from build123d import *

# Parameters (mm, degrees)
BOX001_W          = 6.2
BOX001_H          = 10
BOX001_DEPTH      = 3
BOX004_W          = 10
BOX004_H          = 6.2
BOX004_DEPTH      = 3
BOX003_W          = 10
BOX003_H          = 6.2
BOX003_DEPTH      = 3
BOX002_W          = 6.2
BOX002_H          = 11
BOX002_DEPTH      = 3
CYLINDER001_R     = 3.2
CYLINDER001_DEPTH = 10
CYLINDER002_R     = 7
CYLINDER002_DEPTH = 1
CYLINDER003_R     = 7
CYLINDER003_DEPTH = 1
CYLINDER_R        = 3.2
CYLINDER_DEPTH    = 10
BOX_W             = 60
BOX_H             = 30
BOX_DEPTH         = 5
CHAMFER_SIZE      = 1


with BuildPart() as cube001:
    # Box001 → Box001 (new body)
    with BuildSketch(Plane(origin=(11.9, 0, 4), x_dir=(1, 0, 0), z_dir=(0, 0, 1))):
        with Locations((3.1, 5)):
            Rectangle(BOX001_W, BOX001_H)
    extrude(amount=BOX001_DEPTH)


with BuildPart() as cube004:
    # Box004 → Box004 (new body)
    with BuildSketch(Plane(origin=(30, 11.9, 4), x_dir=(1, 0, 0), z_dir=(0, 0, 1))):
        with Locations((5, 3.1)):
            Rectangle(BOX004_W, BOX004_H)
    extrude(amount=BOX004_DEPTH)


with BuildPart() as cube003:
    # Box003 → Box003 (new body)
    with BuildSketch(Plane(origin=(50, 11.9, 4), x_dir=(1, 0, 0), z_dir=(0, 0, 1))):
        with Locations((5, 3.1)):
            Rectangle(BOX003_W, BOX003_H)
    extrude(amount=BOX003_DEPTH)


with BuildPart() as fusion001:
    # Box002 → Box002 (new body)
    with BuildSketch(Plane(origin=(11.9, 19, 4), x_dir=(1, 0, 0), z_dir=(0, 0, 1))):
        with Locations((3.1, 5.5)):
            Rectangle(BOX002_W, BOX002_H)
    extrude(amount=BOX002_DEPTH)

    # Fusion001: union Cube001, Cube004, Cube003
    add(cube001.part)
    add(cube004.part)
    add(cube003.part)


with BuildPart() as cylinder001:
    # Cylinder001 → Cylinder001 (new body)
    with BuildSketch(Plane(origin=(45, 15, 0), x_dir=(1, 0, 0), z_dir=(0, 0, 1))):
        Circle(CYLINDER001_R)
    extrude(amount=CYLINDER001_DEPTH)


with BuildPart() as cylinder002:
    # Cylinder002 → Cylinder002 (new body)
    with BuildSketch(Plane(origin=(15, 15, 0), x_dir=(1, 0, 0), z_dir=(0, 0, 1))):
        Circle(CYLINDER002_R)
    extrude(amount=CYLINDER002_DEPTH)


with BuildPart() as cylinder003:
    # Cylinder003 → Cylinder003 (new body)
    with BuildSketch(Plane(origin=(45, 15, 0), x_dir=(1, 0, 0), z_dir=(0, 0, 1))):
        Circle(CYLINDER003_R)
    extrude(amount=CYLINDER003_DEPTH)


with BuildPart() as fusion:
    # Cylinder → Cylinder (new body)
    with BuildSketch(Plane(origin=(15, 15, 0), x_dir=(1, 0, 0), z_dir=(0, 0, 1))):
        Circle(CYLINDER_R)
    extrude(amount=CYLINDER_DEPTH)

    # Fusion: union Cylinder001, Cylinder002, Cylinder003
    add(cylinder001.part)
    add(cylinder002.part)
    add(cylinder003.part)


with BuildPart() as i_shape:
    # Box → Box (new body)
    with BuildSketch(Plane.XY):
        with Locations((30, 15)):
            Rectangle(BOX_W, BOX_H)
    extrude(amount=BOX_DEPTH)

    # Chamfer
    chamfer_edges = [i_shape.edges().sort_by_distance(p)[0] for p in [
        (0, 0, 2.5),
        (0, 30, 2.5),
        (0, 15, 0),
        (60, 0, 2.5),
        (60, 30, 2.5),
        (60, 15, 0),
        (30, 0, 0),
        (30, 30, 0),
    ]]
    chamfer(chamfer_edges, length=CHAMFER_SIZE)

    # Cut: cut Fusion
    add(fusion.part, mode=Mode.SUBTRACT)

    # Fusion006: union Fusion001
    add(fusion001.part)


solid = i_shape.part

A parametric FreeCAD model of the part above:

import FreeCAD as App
import Part
import Sketcher


def edges_at(feature, points):
    """Names of the edges that pass closest to the given points."""
    edges = feature.Shape.Edges
    near = lambda p: min(range(len(edges)), key=lambda i: edges[i].distToShape(Part.Vertex(*p))[0])
    return sorted({f"Edge{near(p) + 1}" for p in points})

doc = App.newDocument("Part")
body = doc.addObject("PartDesign::Body", "Body")

sketch1 = body.newObject("Sketcher::SketchObject", "Sketch")
sketch1.AttachmentSupport = (doc.getObject("XY_Plane"), [""])
sketch1.MapMode = "FlatFace"
sketch1.AttachmentOffset = App.Placement(App.Vector(0, 0, 4), App.Rotation())
sketch1.addGeometry(Part.LineSegment(App.Vector(12, 10, 0), App.Vector(12, 0, 0)), False)
sketch1.addGeometry(Part.LineSegment(App.Vector(12, 0, 0), App.Vector(18, 0, 0)), False)
sketch1.addGeometry(Part.LineSegment(App.Vector(18, 0, 0), App.Vector(18, 10, 0)), False)
sketch1.addGeometry(Part.LineSegment(App.Vector(18, 10, 0), App.Vector(12, 10, 0)), False)
sketch1.addConstraint(Sketcher.Constraint("Coincident", 0, 2, 1, 1))
sketch1.addConstraint(Sketcher.Constraint("Coincident", 1, 2, 2, 1))
sketch1.addConstraint(Sketcher.Constraint("Coincident", 2, 2, 3, 1))
sketch1.addConstraint(Sketcher.Constraint("Coincident", 3, 2, 0, 1))
sketch1.addConstraint(Sketcher.Constraint("Vertical", 0))
sketch1.addConstraint(Sketcher.Constraint("Horizontal", 1))
sketch1.addConstraint(Sketcher.Constraint("Vertical", 2))
sketch1.addConstraint(Sketcher.Constraint("Horizontal", 3))
sketch1.addConstraint(Sketcher.Constraint("PointOnObject", 0, 2, -1))
sketch1.addConstraint(Sketcher.Constraint("DistanceY", 0, 2, 0, 1, 10.0))
sketch1.addConstraint(Sketcher.Constraint("DistanceX", 1, 1, 1, 2, 6.2))
sketch1.addConstraint(Sketcher.Constraint("DistanceX", -1, 1, 0, 2, 11.9))
pad1 = body.newObject("PartDesign::Pad", "Pad")
pad1.Profile = sketch1
pad1.Length = 3
body2 = doc.addObject("PartDesign::Body", "Body001")

sketch2 = body2.newObject("Sketcher::SketchObject", "Sketch001")
sketch2.AttachmentSupport = (doc.getObject("XY_Plane001"), [""])
sketch2.MapMode = "FlatFace"
sketch2.AttachmentOffset = App.Placement(App.Vector(0, 0, 4), App.Rotation())
sketch2.addGeometry(Part.LineSegment(App.Vector(30, 18, 0), App.Vector(30, 12, 0)), False)
sketch2.addGeometry(Part.LineSegment(App.Vector(30, 12, 0), App.Vector(40, 12, 0)), False)
sketch2.addGeometry(Part.LineSegment(App.Vector(40, 12, 0), App.Vector(40, 18, 0)), False)
sketch2.addGeometry(Part.LineSegment(App.Vector(40, 18, 0), App.Vector(30, 18, 0)), False)
sketch2.addConstraint(Sketcher.Constraint("Coincident", 0, 2, 1, 1))
sketch2.addConstraint(Sketcher.Constraint("Coincident", 1, 2, 2, 1))
sketch2.addConstraint(Sketcher.Constraint("Coincident", 2, 2, 3, 1))
sketch2.addConstraint(Sketcher.Constraint("Coincident", 3, 2, 0, 1))
sketch2.addConstraint(Sketcher.Constraint("Vertical", 0))
sketch2.addConstraint(Sketcher.Constraint("Horizontal", 1))
sketch2.addConstraint(Sketcher.Constraint("Vertical", 2))
sketch2.addConstraint(Sketcher.Constraint("Horizontal", 3))
sketch2.addConstraint(Sketcher.Constraint("DistanceX", 1, 1, 1, 2, 10.0))
sketch2.addConstraint(Sketcher.Constraint("DistanceY", 0, 2, 0, 1, 6.2))
sketch2.addConstraint(Sketcher.Constraint("DistanceX", -1, 1, 0, 2, 30.0))
sketch2.addConstraint(Sketcher.Constraint("DistanceY", -1, 1, 0, 2, 11.9))
pad2 = body2.newObject("PartDesign::Pad", "Pad001")
pad2.Profile = sketch2
pad2.Length = 3
body3 = doc.addObject("PartDesign::Body", "Body002")

sketch3 = body3.newObject("Sketcher::SketchObject", "Sketch002")
sketch3.AttachmentSupport = (doc.getObject("XY_Plane002"), [""])
sketch3.MapMode = "FlatFace"
sketch3.AttachmentOffset = App.Placement(App.Vector(0, 0, 4), App.Rotation())
sketch3.addGeometry(Part.LineSegment(App.Vector(50, 18, 0), App.Vector(50, 12, 0)), False)
sketch3.addGeometry(Part.LineSegment(App.Vector(50, 12, 0), App.Vector(60, 12, 0)), False)
sketch3.addGeometry(Part.LineSegment(App.Vector(60, 12, 0), App.Vector(60, 18, 0)), False)
sketch3.addGeometry(Part.LineSegment(App.Vector(60, 18, 0), App.Vector(50, 18, 0)), False)
sketch3.addConstraint(Sketcher.Constraint("Coincident", 0, 2, 1, 1))
sketch3.addConstraint(Sketcher.Constraint("Coincident", 1, 2, 2, 1))
sketch3.addConstraint(Sketcher.Constraint("Coincident", 2, 2, 3, 1))
sketch3.addConstraint(Sketcher.Constraint("Coincident", 3, 2, 0, 1))
sketch3.addConstraint(Sketcher.Constraint("Vertical", 0))
sketch3.addConstraint(Sketcher.Constraint("Horizontal", 1))
sketch3.addConstraint(Sketcher.Constraint("Vertical", 2))
sketch3.addConstraint(Sketcher.Constraint("Horizontal", 3))
sketch3.addConstraint(Sketcher.Constraint("DistanceX", 1, 1, 1, 2, 10.0))
sketch3.addConstraint(Sketcher.Constraint("DistanceY", 0, 2, 0, 1, 6.2))
sketch3.addConstraint(Sketcher.Constraint("DistanceX", -1, 1, 0, 2, 50.0))
sketch3.addConstraint(Sketcher.Constraint("DistanceY", -1, 1, 0, 2, 11.9))
pad3 = body3.newObject("PartDesign::Pad", "Pad002")
pad3.Profile = sketch3
pad3.Length = 3
body4 = doc.addObject("PartDesign::Body", "Body003")
body4.AllowCompound = True

sketch4 = body4.newObject("Sketcher::SketchObject", "Sketch003")
sketch4.AttachmentSupport = (doc.getObject("XY_Plane003"), [""])
sketch4.MapMode = "FlatFace"
sketch4.AttachmentOffset = App.Placement(App.Vector(0, 0, 4), App.Rotation())
sketch4.addGeometry(Part.LineSegment(App.Vector(12, 30, 0), App.Vector(12, 19, 0)), False)
sketch4.addGeometry(Part.LineSegment(App.Vector(12, 19, 0), App.Vector(18, 19, 0)), False)
sketch4.addGeometry(Part.LineSegment(App.Vector(18, 19, 0), App.Vector(18, 30, 0)), False)
sketch4.addGeometry(Part.LineSegment(App.Vector(18, 30, 0), App.Vector(12, 30, 0)), False)
sketch4.addConstraint(Sketcher.Constraint("Coincident", 0, 2, 1, 1))
sketch4.addConstraint(Sketcher.Constraint("Coincident", 1, 2, 2, 1))
sketch4.addConstraint(Sketcher.Constraint("Coincident", 2, 2, 3, 1))
sketch4.addConstraint(Sketcher.Constraint("Coincident", 3, 2, 0, 1))
sketch4.addConstraint(Sketcher.Constraint("Vertical", 0))
sketch4.addConstraint(Sketcher.Constraint("Horizontal", 1))
sketch4.addConstraint(Sketcher.Constraint("Vertical", 2))
sketch4.addConstraint(Sketcher.Constraint("Horizontal", 3))
sketch4.addConstraint(Sketcher.Constraint("DistanceY", 0, 2, 0, 1, 11.0))
sketch4.addConstraint(Sketcher.Constraint("DistanceX", 1, 1, 1, 2, 6.2))
sketch4.addConstraint(Sketcher.Constraint("DistanceY", -1, 1, 0, 2, 19.0))
sketch4.addConstraint(Sketcher.Constraint("DistanceX", -1, 1, 0, 2, 11.9))
pad4 = body4.newObject("PartDesign::Pad", "Pad003")
pad4.Profile = sketch4
pad4.Length = 3
doc.recompute()

boolean = body4.newObject("PartDesign::Boolean", "Boolean")
boolean.Type = "Fuse"
boolean.addObjects([body])
doc.recompute()

boolean2 = body4.newObject("PartDesign::Boolean", "Boolean001")
boolean2.Type = "Fuse"
boolean2.addObjects([body2])
doc.recompute()

boolean3 = body4.newObject("PartDesign::Boolean", "Boolean002")
boolean3.Type = "Fuse"
boolean3.addObjects([body3])
body5 = doc.addObject("PartDesign::Body", "Body004")

sketch5 = body5.newObject("Sketcher::SketchObject", "Sketch004")
sketch5.AttachmentSupport = (doc.getObject("XY_Plane004"), [""])
sketch5.MapMode = "FlatFace"
sketch5.addGeometry(Part.Circle(App.Vector(45, 15, 0), App.Vector(0, 0, 1), 3.2), False)
sketch5.addConstraint(Sketcher.Constraint("Diameter", 0, 6.4))
sketch5.addConstraint(Sketcher.Constraint("DistanceX", -1, 1, 0, 3, 45.0))
sketch5.addConstraint(Sketcher.Constraint("DistanceY", -1, 1, 0, 3, 15.0))
pad5 = body5.newObject("PartDesign::Pad", "Pad004")
pad5.Profile = sketch5
pad5.Length = 10
body6 = doc.addObject("PartDesign::Body", "Body005")

sketch6 = body6.newObject("Sketcher::SketchObject", "Sketch005")
sketch6.AttachmentSupport = (doc.getObject("XY_Plane005"), [""])
sketch6.MapMode = "FlatFace"
sketch6.addGeometry(Part.Circle(App.Vector(15, 15, 0), App.Vector(0, 0, 1), 7), False)
sketch6.addConstraint(Sketcher.Constraint("Diameter", 0, 14.0))
sketch6.addConstraint(Sketcher.Constraint("DistanceX", -1, 1, 0, 3, 15.0))
sketch6.addConstraint(Sketcher.Constraint("DistanceY", -1, 1, 0, 3, 15.0))
pad6 = body6.newObject("PartDesign::Pad", "Pad005")
pad6.Profile = sketch6
pad6.Length = 1
body7 = doc.addObject("PartDesign::Body", "Body006")

sketch7 = body7.newObject("Sketcher::SketchObject", "Sketch006")
sketch7.AttachmentSupport = (doc.getObject("XY_Plane006"), [""])
sketch7.MapMode = "FlatFace"
sketch7.addGeometry(Part.Circle(App.Vector(45, 15, 0), App.Vector(0, 0, 1), 7), False)
sketch7.addConstraint(Sketcher.Constraint("Diameter", 0, 14.0))
sketch7.addConstraint(Sketcher.Constraint("DistanceX", -1, 1, 0, 3, 45.0))
sketch7.addConstraint(Sketcher.Constraint("DistanceY", -1, 1, 0, 3, 15.0))
pad7 = body7.newObject("PartDesign::Pad", "Pad006")
pad7.Profile = sketch7
pad7.Length = 1
body8 = doc.addObject("PartDesign::Body", "Body007")
body8.AllowCompound = True

sketch8 = body8.newObject("Sketcher::SketchObject", "Sketch007")
sketch8.AttachmentSupport = (doc.getObject("XY_Plane007"), [""])
sketch8.MapMode = "FlatFace"
sketch8.addGeometry(Part.Circle(App.Vector(15, 15, 0), App.Vector(0, 0, 1), 3.2), False)
sketch8.addConstraint(Sketcher.Constraint("Diameter", 0, 6.4))
sketch8.addConstraint(Sketcher.Constraint("DistanceX", -1, 1, 0, 3, 15.0))
sketch8.addConstraint(Sketcher.Constraint("DistanceY", -1, 1, 0, 3, 15.0))
pad8 = body8.newObject("PartDesign::Pad", "Pad007")
pad8.Profile = sketch8
pad8.Length = 10
doc.recompute()

boolean4 = body8.newObject("PartDesign::Boolean", "Boolean003")
boolean4.Type = "Fuse"
boolean4.addObjects([body5])
doc.recompute()

boolean5 = body8.newObject("PartDesign::Boolean", "Boolean004")
boolean5.Type = "Fuse"
boolean5.addObjects([body6])
doc.recompute()

boolean6 = body8.newObject("PartDesign::Boolean", "Boolean005")
boolean6.Type = "Fuse"
boolean6.addObjects([body7])
body9 = doc.addObject("PartDesign::Body", "Body008")

sketch9 = body9.newObject("Sketcher::SketchObject", "Sketch008")
sketch9.AttachmentSupport = (doc.getObject("XY_Plane008"), [""])
sketch9.MapMode = "FlatFace"
sketch9.addGeometry(Part.LineSegment(App.Vector(0, 30, 0), App.Vector(0, 0, 0)), False)
sketch9.addGeometry(Part.LineSegment(App.Vector(0, 0, 0), App.Vector(60, 0, 0)), False)
sketch9.addGeometry(Part.LineSegment(App.Vector(60, 0, 0), App.Vector(60, 30, 0)), False)
sketch9.addGeometry(Part.LineSegment(App.Vector(60, 30, 0), App.Vector(0, 30, 0)), False)
sketch9.addConstraint(Sketcher.Constraint("Coincident", 0, 2, 1, 1))
sketch9.addConstraint(Sketcher.Constraint("Coincident", 1, 2, 2, 1))
sketch9.addConstraint(Sketcher.Constraint("Coincident", 2, 2, 3, 1))
sketch9.addConstraint(Sketcher.Constraint("Coincident", 3, 2, 0, 1))
sketch9.addConstraint(Sketcher.Constraint("Vertical", 0))
sketch9.addConstraint(Sketcher.Constraint("Horizontal", 1))
sketch9.addConstraint(Sketcher.Constraint("Vertical", 2))
sketch9.addConstraint(Sketcher.Constraint("Horizontal", 3))
sketch9.addConstraint(Sketcher.Constraint("Coincident", 0, 2, -1, 1))
sketch9.addConstraint(Sketcher.Constraint("DistanceX", 1, 1, 1, 2, 60.0))
sketch9.addConstraint(Sketcher.Constraint("DistanceY", 0, 2, 0, 1, 30.0))
pad9 = body9.newObject("PartDesign::Pad", "Pad008")
pad9.Profile = sketch9
pad9.Length = 5
doc.recompute()

chamfer = body9.newObject("PartDesign::Chamfer", "Chamfer")
chamfer.Base = (pad9, edges_at(pad9, [
    (0, 0, 2.5),
    (0, 30, 2.5),
    (0, 15, 0),
    (60, 0, 2.5),
    (60, 30, 2.5),
    (60, 15, 0),
    (30, 0, 0),
    (30, 30, 0),
]))
chamfer.Size = 1
doc.recompute()

boolean7 = body9.newObject("PartDesign::Boolean", "Boolean006")
boolean7.Type = "Cut"
boolean7.addObjects([body8])
doc.recompute()

boolean8 = body9.newObject("PartDesign::Boolean", "Boolean007")
boolean8.Type = "Fuse"
boolean8.addObjects([body4])

doc.recompute()
